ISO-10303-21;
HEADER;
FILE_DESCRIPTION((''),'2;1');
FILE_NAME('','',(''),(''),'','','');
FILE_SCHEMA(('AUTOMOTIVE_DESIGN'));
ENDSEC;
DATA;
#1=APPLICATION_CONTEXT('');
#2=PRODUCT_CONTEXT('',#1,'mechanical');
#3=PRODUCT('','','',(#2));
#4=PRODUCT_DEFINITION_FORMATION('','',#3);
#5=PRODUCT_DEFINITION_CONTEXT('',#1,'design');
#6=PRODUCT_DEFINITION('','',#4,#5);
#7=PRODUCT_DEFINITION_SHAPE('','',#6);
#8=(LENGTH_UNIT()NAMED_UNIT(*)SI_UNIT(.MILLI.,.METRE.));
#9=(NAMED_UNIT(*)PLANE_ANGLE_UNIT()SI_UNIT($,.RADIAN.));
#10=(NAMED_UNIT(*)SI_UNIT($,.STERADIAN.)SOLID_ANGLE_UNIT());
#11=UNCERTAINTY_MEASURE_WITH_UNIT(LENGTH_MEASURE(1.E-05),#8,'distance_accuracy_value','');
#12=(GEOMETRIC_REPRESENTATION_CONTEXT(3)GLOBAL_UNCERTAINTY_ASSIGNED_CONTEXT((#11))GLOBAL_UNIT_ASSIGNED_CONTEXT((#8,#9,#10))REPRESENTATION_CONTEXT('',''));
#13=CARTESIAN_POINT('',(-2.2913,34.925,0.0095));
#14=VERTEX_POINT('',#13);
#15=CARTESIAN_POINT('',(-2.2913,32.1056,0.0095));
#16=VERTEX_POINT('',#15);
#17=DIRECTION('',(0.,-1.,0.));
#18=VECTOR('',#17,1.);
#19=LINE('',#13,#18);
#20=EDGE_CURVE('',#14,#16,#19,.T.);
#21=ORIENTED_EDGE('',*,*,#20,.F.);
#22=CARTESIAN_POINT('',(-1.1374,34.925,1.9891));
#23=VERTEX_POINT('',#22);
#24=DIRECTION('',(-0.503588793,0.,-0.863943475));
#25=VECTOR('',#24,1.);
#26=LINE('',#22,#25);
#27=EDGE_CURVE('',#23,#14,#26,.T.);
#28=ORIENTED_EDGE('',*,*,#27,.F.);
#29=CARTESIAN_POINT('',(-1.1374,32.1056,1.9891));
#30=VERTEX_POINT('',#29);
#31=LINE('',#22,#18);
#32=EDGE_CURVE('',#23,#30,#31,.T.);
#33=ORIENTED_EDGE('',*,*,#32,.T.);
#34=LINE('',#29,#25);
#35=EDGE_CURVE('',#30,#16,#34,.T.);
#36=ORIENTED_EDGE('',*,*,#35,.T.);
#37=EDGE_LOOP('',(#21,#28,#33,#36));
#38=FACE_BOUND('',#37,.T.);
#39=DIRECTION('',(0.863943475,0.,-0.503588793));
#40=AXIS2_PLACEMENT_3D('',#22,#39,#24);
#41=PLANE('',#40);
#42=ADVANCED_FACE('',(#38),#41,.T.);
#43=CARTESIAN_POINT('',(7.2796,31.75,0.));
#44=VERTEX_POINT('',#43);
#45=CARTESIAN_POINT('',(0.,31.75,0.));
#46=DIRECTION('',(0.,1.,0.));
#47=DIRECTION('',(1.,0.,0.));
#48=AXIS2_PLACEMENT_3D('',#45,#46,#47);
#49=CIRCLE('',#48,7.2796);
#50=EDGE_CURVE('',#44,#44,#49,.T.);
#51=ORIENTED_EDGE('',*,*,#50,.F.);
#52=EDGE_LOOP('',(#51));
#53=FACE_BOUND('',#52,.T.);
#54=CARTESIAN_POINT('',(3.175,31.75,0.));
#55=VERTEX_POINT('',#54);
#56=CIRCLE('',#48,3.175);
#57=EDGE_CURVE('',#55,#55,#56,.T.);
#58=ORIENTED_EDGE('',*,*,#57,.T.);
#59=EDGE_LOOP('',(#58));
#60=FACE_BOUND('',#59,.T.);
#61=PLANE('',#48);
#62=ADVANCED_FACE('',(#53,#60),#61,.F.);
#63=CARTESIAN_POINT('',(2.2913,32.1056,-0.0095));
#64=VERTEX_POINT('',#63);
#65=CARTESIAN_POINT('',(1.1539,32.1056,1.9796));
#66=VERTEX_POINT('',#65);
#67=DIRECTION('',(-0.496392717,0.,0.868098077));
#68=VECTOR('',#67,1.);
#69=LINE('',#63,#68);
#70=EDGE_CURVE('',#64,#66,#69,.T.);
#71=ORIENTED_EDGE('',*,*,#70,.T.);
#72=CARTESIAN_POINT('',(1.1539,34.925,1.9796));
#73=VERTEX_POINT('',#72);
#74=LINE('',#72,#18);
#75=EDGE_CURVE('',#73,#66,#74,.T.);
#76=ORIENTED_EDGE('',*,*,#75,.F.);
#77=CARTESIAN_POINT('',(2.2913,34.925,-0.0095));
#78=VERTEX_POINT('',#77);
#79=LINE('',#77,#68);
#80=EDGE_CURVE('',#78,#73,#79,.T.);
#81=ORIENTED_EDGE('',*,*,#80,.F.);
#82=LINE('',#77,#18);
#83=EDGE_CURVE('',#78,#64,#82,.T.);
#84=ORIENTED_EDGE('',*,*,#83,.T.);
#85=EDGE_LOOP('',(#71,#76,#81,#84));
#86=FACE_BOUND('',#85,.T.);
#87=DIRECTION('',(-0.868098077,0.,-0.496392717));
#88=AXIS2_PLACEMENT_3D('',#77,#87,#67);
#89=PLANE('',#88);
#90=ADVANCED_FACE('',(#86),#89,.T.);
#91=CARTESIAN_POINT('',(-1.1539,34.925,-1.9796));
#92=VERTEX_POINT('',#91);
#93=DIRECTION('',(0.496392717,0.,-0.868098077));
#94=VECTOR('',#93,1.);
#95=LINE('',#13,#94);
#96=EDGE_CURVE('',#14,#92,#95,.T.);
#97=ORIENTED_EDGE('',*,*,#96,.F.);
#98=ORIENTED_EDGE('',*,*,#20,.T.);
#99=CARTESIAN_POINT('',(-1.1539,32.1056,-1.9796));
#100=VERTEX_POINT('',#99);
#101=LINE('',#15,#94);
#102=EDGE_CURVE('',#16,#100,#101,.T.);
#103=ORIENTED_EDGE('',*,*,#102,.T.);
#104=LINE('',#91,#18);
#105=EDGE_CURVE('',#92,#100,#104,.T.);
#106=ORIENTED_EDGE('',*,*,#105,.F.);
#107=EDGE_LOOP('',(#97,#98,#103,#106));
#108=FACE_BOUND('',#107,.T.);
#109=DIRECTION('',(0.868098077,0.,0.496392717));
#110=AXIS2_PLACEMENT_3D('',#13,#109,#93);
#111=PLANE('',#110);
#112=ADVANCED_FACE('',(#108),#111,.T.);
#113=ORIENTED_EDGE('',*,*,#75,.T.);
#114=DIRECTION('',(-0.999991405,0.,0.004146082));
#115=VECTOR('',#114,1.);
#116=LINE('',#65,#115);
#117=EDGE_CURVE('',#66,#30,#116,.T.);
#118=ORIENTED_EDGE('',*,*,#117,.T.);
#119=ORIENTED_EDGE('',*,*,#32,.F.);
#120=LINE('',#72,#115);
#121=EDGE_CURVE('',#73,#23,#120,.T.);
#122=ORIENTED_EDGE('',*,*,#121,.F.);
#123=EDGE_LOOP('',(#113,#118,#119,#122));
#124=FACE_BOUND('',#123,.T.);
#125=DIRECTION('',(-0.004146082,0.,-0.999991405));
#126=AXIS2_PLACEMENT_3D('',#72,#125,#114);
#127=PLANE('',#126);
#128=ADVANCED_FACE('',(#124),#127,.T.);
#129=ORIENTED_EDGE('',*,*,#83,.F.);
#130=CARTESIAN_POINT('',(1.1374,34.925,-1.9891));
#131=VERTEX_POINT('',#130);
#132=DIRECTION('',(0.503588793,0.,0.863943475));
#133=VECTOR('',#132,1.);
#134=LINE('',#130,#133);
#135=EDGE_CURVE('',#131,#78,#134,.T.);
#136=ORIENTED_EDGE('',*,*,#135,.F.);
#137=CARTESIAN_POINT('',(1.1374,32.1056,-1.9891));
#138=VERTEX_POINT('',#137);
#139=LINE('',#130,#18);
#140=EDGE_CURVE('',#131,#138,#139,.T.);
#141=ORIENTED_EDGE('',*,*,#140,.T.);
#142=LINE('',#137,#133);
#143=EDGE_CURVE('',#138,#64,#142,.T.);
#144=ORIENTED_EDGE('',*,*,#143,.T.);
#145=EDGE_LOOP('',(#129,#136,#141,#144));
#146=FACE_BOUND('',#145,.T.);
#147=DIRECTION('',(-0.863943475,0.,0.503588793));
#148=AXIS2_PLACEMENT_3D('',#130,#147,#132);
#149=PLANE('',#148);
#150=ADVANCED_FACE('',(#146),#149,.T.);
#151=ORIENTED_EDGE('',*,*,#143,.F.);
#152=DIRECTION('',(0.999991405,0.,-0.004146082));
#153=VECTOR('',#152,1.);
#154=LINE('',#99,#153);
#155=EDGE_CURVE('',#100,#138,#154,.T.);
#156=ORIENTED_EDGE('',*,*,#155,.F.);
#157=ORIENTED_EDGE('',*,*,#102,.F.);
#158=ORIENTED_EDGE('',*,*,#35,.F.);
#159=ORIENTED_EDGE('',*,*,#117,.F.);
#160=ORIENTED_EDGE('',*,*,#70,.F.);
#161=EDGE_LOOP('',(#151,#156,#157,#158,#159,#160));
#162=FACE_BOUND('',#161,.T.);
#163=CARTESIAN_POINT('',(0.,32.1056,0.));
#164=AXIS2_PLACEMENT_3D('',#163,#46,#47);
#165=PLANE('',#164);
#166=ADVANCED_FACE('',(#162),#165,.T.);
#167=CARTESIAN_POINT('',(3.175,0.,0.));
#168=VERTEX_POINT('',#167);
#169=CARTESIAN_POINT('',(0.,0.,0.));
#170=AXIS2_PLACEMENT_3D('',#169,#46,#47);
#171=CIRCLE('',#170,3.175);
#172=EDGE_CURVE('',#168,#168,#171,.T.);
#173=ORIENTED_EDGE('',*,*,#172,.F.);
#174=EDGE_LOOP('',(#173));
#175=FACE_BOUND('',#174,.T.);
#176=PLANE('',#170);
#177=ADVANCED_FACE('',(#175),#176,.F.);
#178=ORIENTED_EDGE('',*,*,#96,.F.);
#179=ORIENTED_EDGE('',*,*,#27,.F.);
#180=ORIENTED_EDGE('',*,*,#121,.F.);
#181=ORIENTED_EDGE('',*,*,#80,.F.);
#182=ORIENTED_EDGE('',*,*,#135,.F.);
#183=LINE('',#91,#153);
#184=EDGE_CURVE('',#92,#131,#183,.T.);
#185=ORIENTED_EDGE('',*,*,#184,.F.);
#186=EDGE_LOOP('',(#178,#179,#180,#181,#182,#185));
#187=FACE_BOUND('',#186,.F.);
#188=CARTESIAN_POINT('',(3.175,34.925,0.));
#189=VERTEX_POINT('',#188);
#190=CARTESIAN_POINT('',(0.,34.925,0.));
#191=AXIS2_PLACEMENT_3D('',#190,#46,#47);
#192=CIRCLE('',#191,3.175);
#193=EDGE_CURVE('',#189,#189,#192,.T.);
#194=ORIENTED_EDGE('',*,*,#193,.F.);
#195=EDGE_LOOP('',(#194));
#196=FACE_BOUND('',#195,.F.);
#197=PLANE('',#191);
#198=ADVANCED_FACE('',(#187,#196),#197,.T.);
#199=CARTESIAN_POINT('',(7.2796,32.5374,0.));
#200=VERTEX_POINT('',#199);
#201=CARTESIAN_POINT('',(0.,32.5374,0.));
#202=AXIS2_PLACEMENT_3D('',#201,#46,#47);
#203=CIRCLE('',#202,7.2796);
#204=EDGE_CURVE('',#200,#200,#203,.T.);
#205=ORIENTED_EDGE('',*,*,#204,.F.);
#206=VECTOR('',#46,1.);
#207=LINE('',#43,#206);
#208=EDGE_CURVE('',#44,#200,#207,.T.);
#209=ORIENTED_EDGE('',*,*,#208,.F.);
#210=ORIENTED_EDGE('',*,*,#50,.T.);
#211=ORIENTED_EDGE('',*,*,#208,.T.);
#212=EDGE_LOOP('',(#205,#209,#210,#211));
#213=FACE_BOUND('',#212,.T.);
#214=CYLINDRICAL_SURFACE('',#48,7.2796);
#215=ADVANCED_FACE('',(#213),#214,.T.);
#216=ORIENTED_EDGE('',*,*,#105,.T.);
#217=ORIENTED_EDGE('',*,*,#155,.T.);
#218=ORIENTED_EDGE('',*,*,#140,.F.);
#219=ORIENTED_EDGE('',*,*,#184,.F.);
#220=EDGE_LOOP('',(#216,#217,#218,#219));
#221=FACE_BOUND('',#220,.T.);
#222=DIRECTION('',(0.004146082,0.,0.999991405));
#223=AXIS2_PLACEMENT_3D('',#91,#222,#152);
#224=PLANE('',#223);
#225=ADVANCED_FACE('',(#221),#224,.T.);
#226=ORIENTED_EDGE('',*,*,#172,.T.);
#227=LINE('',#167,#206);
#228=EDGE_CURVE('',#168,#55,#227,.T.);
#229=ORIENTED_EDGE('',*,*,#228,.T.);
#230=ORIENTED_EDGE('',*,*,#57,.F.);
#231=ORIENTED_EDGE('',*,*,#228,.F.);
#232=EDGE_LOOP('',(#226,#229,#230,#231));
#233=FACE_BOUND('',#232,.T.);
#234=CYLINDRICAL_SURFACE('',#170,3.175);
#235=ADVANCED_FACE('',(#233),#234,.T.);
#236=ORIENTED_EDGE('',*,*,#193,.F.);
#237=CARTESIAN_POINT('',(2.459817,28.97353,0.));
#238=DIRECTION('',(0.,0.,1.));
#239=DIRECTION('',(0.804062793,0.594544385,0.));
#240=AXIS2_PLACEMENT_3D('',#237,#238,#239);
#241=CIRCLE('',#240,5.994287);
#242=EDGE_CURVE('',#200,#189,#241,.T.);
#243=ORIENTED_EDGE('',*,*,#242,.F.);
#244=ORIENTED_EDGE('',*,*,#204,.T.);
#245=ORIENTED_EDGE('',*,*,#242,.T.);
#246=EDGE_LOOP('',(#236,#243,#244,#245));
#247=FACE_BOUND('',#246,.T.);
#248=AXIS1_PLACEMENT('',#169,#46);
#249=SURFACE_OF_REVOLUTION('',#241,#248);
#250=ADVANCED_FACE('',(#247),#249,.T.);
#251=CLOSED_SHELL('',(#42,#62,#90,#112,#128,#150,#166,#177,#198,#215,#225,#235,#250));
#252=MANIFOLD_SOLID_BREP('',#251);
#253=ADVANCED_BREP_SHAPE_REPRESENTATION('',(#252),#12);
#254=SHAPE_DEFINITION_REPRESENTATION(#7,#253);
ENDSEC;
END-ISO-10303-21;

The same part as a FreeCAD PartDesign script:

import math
import FreeCAD as App
import Part
import Sketcher

V = App.Vector
Q = App.Units.Quantity

doc = App.newDocument("Part")
params = doc.addObject("Spreadsheet::Sheet", "Params")
for row, (alias, value) in enumerate([
    ("sketch1_radius", "0.236 in"),
    ("sketch1_height", "1.25 in"),
    ("sketch1_width", "0.125 in"),
    ("sketch1_height2", "1.375 in"),
    ("sketch1_height3", "0.031 in"),
    ("revolution_angle", "360 deg"),
    ("pocket1_length", "0.111 in"),
], start=1):
    params.set(f"A{row}", alias)
    params.set(f"B{row}", "=" + value)
    params.setAlias(f"B{row}", alias)

body = doc.addObject("PartDesign::Body", "Body")

# Sketch on XY plane
sketch1 = body.newObject("Sketcher::SketchObject", "Sketch")
sketch1.AttachmentSupport = (doc.getObject("XY_Plane"), [""])
sketch1.MapMode = "FlatFace"
sketch1.addGeometry([
    Part.LineSegment(V(0, 34.9, 0), V(0, 0, 0)),  # 0
    Part.LineSegment(V(0, 0, 0), V(3.2, 0, 0)),  # 1
    Part.LineSegment(V(3.2, 0, 0), V(3.2, 31.8, 0)),  # 2
    Part.LineSegment(V(3.2, 31.8, 0), V(7.3, 31.8, 0)),  # 3
    Part.LineSegment(V(7.3, 31.8, 0), V(7.3, 32.5, 0)),  # 4
    Part.ArcOfCircle(Part.Circle(V(2.5, 29, 0), V(0, 0, 1), 6), math.radians(36), math.radians(83)),  # 5
    Part.LineSegment(V(3.2, 34.9, 0), V(0, 34.9, 0)),  # 6
], False)
sketch1.addConstraint([
    Sketcher.Constraint("Coincident", 0, 2, 1, 1),
    Sketcher.Constraint("Coincident", 1, 2, 2, 1),
    Sketcher.Constraint("Coincident", 2, 2, 3, 1),
    Sketcher.Constraint("Coincident", 3, 2, 4, 1),
    Sketcher.Constraint("Coincident", 4, 2, 5, 1),
    Sketcher.Constraint("Coincident", 5, 2, 6, 1),
    Sketcher.Constraint("Coincident", 6, 2, 0, 1),
    Sketcher.Constraint("Vertical", 0),
    Sketcher.Constraint("Horizontal", 1),
    Sketcher.Constraint("Vertical", 2),
    Sketcher.Constraint("Horizontal", 3),
    Sketcher.Constraint("Vertical", 4),
    Sketcher.Constraint("Horizontal", 6),
    Sketcher.Constraint("Coincident", 0, 2, -1, 1),
    Sketcher.Constraint("Vertical", 2, 2, 5, 2),
    Sketcher.Constraint("Radius", 5, Q("0.236 in")),
    Sketcher.Constraint("DistanceY", 2, 1, 2, 2, Q("1.25 in")),
    Sketcher.Constraint("DistanceX", 1, 1, 1, 2, Q("0.125 in")),
    Sketcher.Constraint("DistanceY", 0, 2, 0, 1, Q("1.375 in")),
    Sketcher.Constraint("DistanceY", 4, 1, 4, 2, Q("0.031 in")),
    Sketcher.Constraint("DistanceX", 3, 1, 3, 2, Q("0.1616 in")),
])
sketch1.setExpression("Constraints[15]", "Params.sketch1_radius")
sketch1.setExpression("Constraints[16]", "Params.sketch1_height")
sketch1.setExpression("Constraints[17]", "Params.sketch1_width")
sketch1.setExpression("Constraints[18]", "Params.sketch1_height2")
sketch1.setExpression("Constraints[19]", "Params.sketch1_height3")
revolution = body.newObject("PartDesign::Revolution", "Revolution")
revolution.Profile = sketch1
revolution.ReferenceAxis = (sketch1, ["V_Axis"])
revolution.setExpression("Angle", "Params.revolution_angle")

# Sketch on XZ plane
sketch2 = body.newObject("Sketcher::SketchObject", "Sketch001")
sketch2.AttachmentSupport = (doc.getObject("XZ_Plane"), [""])
sketch2.MapMode = "FlatFace"
sketch2.AttachmentOffset = App.Placement(V(0, 0, -1.375 * 25.4), App.Rotation())
sketch2.addGeometry([
    Part.LineSegment(V(-1.1, 2, 0), V(1.2, 2, 0)),  # 0
    Part.LineSegment(V(1.2, 2, 0), V(2.3, 0, 0)),  # 1
    Part.LineSegment(V(2.3, 0, 0), V(1.1, -2, 0)),  # 2
    Part.LineSegment(V(1.1, -2, 0), V(-1.2, -2, 0)),  # 3
    Part.LineSegment(V(-1.2, -2, 0), V(-2.3, 0, 0)),  # 4
    Part.LineSegment(V(-2.3, 0, 0), V(-1.1, 2, 0)),  # 5
], False)
sketch2.addConstraint([
    Sketcher.Constraint("Coincident", 0, 2, 1, 1),
    Sketcher.Constraint("Coincident", 1, 2, 2, 1),
    Sketcher.Constraint("Coincident", 2, 2, 3, 1),
    Sketcher.Constraint("Coincident", 3, 2, 4, 1),
    Sketcher.Constraint("Coincident", 4, 2, 5, 1),
    Sketcher.Constraint("Coincident", 5, 2, 0, 1),
    Sketcher.Constraint("Symmetric", 0, 2, 3, 2, -1, 1),
    Sketcher.Constraint("Symmetric", 1, 2, 4, 2, -1, 1),
    Sketcher.Constraint("Symmetric", 2, 2, 5, 2, -1, 1),
    Sketcher.Constraint("Equal", 0, 1),
    Sketcher.Constraint("Equal", 1, 2),
    Sketcher.Constraint("DistanceY", 2, 2, 0, 2, Q("0.156248 in")),
    Sketcher.Constraint("DistanceX", 4, 2, 1, 2, 4.5826),
    Sketcher.Constraint("DistanceX", 4, 2, 2, 2, Q("0.135 in")),
    Sketcher.Constraint("DistanceY", 2, 2, -1, 1, Q("0.0783 in")),
])
pocket1 = body.newObject("PartDesign::Pocket", "Pocket")
pocket1.Profile = sketch2
pocket1.setExpression("Length", "Params.pocket1_length")
pocket1.Reversed = True

doc.recompute()
